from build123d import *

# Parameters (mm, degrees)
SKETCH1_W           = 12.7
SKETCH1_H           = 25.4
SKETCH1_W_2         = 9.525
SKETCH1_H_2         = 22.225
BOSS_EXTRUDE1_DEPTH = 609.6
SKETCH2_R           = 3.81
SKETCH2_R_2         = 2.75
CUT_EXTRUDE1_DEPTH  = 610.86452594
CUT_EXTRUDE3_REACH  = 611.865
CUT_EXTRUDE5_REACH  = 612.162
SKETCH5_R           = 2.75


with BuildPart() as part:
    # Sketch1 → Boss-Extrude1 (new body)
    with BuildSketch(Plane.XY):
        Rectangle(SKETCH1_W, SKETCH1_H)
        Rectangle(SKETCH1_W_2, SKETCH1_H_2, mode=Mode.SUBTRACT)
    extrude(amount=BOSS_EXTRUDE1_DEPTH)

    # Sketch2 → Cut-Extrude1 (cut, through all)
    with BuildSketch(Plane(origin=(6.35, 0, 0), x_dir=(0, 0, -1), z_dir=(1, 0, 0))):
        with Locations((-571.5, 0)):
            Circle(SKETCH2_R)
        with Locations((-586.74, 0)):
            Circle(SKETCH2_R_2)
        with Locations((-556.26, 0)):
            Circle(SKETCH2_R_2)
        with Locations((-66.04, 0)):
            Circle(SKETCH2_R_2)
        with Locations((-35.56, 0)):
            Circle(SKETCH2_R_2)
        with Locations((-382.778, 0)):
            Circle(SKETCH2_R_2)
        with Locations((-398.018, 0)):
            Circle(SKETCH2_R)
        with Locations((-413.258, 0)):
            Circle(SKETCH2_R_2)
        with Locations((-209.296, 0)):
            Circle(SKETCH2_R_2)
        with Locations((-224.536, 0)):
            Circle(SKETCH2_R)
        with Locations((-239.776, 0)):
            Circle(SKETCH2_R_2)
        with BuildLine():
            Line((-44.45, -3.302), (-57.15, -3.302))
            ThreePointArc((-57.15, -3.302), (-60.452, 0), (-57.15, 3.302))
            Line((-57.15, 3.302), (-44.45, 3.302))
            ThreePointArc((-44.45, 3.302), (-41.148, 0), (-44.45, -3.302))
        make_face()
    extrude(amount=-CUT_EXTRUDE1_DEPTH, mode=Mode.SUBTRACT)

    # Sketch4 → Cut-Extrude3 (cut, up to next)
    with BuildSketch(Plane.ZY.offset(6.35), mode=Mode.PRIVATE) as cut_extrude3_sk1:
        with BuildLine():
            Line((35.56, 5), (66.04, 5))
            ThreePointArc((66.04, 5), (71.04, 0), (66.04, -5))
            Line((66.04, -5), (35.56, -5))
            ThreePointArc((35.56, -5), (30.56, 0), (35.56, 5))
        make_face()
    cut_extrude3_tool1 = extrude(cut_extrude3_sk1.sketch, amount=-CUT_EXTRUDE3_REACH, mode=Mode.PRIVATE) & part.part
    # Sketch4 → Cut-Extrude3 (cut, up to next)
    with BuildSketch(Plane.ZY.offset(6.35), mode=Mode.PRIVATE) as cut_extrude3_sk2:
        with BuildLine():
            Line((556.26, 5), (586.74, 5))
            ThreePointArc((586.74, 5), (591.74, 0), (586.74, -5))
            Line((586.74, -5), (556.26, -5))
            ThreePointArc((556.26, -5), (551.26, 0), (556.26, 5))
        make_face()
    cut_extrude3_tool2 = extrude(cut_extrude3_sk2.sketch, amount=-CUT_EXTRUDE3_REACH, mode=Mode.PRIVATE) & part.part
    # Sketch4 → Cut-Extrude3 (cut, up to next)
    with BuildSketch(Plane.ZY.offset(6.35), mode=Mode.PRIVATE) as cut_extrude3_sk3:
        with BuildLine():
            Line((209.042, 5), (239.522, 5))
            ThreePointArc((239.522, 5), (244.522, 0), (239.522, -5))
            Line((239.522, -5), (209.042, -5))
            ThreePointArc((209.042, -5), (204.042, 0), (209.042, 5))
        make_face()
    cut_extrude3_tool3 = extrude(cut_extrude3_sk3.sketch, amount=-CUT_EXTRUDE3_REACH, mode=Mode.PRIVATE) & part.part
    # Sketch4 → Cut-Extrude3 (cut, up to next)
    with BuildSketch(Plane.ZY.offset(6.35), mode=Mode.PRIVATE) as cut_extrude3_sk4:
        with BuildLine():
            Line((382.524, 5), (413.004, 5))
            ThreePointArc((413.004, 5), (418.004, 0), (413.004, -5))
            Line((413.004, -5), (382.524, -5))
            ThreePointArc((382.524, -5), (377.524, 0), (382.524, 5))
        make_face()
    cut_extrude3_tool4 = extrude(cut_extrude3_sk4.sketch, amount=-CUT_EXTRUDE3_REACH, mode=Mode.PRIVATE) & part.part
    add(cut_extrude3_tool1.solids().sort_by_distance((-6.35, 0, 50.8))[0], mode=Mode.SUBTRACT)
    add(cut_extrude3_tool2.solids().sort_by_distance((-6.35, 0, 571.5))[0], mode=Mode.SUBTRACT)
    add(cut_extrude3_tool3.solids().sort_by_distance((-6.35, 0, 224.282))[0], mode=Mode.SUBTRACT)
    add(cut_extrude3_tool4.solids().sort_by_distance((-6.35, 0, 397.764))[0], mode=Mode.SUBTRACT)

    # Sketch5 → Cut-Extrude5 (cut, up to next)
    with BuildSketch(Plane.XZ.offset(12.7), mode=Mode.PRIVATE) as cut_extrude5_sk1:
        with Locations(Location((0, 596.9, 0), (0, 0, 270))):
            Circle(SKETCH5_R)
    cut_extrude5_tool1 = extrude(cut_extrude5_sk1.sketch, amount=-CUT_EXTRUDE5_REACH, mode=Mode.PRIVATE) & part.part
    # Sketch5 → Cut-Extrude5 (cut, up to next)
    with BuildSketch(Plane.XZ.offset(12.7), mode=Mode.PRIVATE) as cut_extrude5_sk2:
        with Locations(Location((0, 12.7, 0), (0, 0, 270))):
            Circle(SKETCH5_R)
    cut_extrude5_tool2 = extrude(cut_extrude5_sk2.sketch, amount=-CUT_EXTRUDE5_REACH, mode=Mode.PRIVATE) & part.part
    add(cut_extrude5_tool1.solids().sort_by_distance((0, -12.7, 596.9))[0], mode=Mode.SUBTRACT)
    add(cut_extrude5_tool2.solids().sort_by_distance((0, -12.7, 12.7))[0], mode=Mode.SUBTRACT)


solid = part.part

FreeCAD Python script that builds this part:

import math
import FreeCAD as App
import Part
import Sketcher
from FreeCAD import Vector
Q = App.Units.Quantity

doc = App.newDocument("Part")
body = doc.addObject("PartDesign::Body", "Body")

sketch1 = body.newObject("Sketcher::SketchObject", "Sketch")
sketch1.AttachmentSupport = (doc.getObject("XY_Plane"), [""])
sketch1.MapMode = "FlatFace"
sketch1.addGeometry([
    Part.LineSegment(Vector(-6, 13, 0), Vector(-6, -13, 0)),
    Part.LineSegment(Vector(-6, -13, 0), Vector(6, -13, 0)),
    Part.LineSegment(Vector(6, -13, 0), Vector(6, 13, 0)),
    Part.LineSegment(Vector(6, 13, 0), Vector(-6, 13, 0)),
    Part.LineSegment(Vector(5, -11, 0), Vector(-5, -11, 0)),
    Part.LineSegment(Vector(-5, -11, 0), Vector(-5, 11, 0)),
    Part.LineSegment(Vector(-5, 11, 0), Vector(5, 11, 0)),
    Part.LineSegment(Vector(5, 11, 0), Vector(5, -11, 0)),
], False)
sketch1.addConstraint([
    Sketcher.Constraint("Coincident", 0, 2, 1, 1),
    Sketcher.Constraint("Coincident", 1, 2, 2, 1),
    Sketcher.Constraint("Coincident", 2, 2, 3, 1),
    Sketcher.Constraint("Coincident", 3, 2, 0, 1),
    Sketcher.Constraint("Coincident", 4, 2, 5, 1),
    Sketcher.Constraint("Coincident", 5, 2, 6, 1),
    Sketcher.Constraint("Coincident", 6, 2, 7, 1),
    Sketcher.Constraint("Coincident", 7, 2, 4, 1),
    Sketcher.Constraint("Vertical", 0),
    Sketcher.Constraint("Horizontal", 1),
    Sketcher.Constraint("Vertical", 2),
    Sketcher.Constraint("Horizontal", 3),
    Sketcher.Constraint("Horizontal", 4),
    Sketcher.Constraint("Vertical", 5),
    Sketcher.Constraint("Horizontal", 6),
    Sketcher.Constraint("Vertical", 7),
    Sketcher.Constraint("Symmetric", 0, 2, 2, 2, -1, 1),
    Sketcher.Constraint("Symmetric", 4, 2, 6, 2, -1, 1),
    Sketcher.Constraint("DistanceY", 0, 2, 0, 1, Q("1 in")),
    Sketcher.Constraint("DistanceX", 1, 1, 1, 2, Q("0.5 in")),
    Sketcher.Constraint("DistanceX", 4, 2, 4, 1, Q("0.375 in")),
    Sketcher.Constraint("DistanceY", 5, 1, 5, 2, Q("0.875 in")),
])
pad1 = body.newObject("PartDesign::Pad", "Pad")
pad1.Profile = sketch1
pad1.Length = Q("24 in")

sketch2 = body.newObject("Sketcher::SketchObject", "Sketch001")
sketch2.AttachmentSupport = (doc.getObject("YZ_Plane"), [""])
sketch2.MapMode = "FlatFace"
sketch2.AttachmentOffset = App.Placement(Vector(0, 0, 0.25 * 25.4), App.Rotation())
sketch2.addGeometry([
    Part.Circle(Vector(0, 571.5, 0), Vector(0, 0, 1), 3.8),
    Part.Circle(Vector(0, 586.7, 0), Vector(0, 0, 1), 2.8),
    Part.Circle(Vector(0, 556.3, 0), Vector(0, 0, 1), 2.8),
    Part.Circle(Vector(0, 66, 0), Vector(0, 0, 1), 2.8),
    Part.Circle(Vector(0, 35.6, 0), Vector(0, 0, 1), 2.8),
    Part.Circle(Vector(0, 382.8, 0), Vector(0, 0, 1), 2.8),
    Part.Circle(Vector(0, 398, 0), Vector(0, 0, 1), 3.8),
    Part.Circle(Vector(0, 413.3, 0), Vector(0, 0, 1), 2.8),
    Part.Circle(Vector(0, 209.3, 0), Vector(0, 0, 1), 2.8),
    Part.Circle(Vector(0, 224.5, 0), Vector(0, 0, 1), 3.8),
    Part.Circle(Vector(0, 239.8, 0), Vector(0, 0, 1), 2.8),
    Part.LineSegment(Vector(-3.3, 57.1, 0), Vector(-3.3, 44.5, 0)),
    Part.ArcOfCircle(Part.Circle(Vector(0, 44.5, 0), Vector(0, 0, 1), 3.3), math.radians(180), math.radians(360)),
    Part.LineSegment(Vector(3.3, 44.5, 0), Vector(3.3, 57.1, 0)),
    Part.ArcOfCircle(Part.Circle(Vector(0, 57.1, 0), Vector(0, 0, 1), 3.3), math.radians(0), math.radians(180)),
], False)
sketch2.addConstraint([
    Sketcher.Constraint("Tangent", 11, 2, 12, 1),
    Sketcher.Constraint("Tangent", 12, 2, 13, 1),
    Sketcher.Constraint("Tangent", 13, 2, 14, 1),
    Sketcher.Constraint("Tangent", 14, 2, 11, 1),
    Sketcher.Constraint("Vertical", 11),
    Sketcher.Constraint("Vertical", 13),
    Sketcher.Constraint("Equal", 1, 2),
    Sketcher.Constraint("Equal", 2, 3),
    Sketcher.Constraint("Equal", 3, 4),
    Sketcher.Constraint("Equal", 4, 5),
    Sketcher.Constraint("Equal", 0, 6),
    Sketcher.Constraint("Equal", 5, 7),
    Sketcher.Constraint("Equal", 7, 8),
    Sketcher.Constraint("Equal", 6, 9),
    Sketcher.Constraint("Equal", 8, 10),
    Sketcher.Constraint("PointOnObject", 0, 3, -2),
    Sketcher.Constraint("PointOnObject", 1, 3, -2),
    Sketcher.Constraint("PointOnObject", 2, 3, -2),
    Sketcher.Constraint("PointOnObject", 3, 3, -2),
    Sketcher.Constraint("PointOnObject", 4, 3, -2),
    Sketcher.Constraint("PointOnObject", 5, 3, -2),
    Sketcher.Constraint("PointOnObject", 6, 3, -2),
    Sketcher.Constraint("PointOnObject", 7, 3, -2),
    Sketcher.Constraint("PointOnObject", 8, 3, -2),
    Sketcher.Constraint("PointOnObject", 9, 3, -2),
    Sketcher.Constraint("PointOnObject", 10, 3, -2),
    Sketcher.Constraint("PointOnObject", 12, 3, -2),
    Sketcher.Constraint("Diameter", 0, Q("0.3 in")),
    Sketcher.Constraint("Radius", 12, Q("0.13 in")),
    Sketcher.Constraint("DistanceY", 11, 2, 11, 1, Q("0.5 in")),
    Sketcher.Constraint("DistanceY", -1, 1, 0, 3, Q("22.5 in")),
    Sketcher.Constraint("DistanceY", -1, 1, 1, 3, Q("23.1 in")),
    Sketcher.Constraint("DistanceY", -1, 1, 2, 3, Q("21.9 in")),
    Sketcher.Constraint("DistanceY", -1, 1, 3, 3, Q("2.6 in")),
    Sketcher.Constraint("DistanceY", -1, 1, 4, 3, Q("1.4 in")),
    Sketcher.Constraint("DistanceY", 5, 3, 6, 3, Q("0.6 in")),
    Sketcher.Constraint("DistanceY", 6, 3, 7, 3, Q("0.6 in")),
    Sketcher.Constraint("DistanceY", 8, 3, 9, 3, Q("0.6 in")),
    Sketcher.Constraint("DistanceY", 9, 3, 10, 3, Q("0.6 in")),
    Sketcher.Constraint("Diameter", 1, Q("5.5 mm")),
    Sketcher.Constraint("DistanceY", -1, 1, 5, 3, Q("15.07 in")),
    Sketcher.Constraint("DistanceY", -1, 1, 8, 3, Q("8.24 in")),
    Sketcher.Constraint("DistanceY", -1, 1, 12, 3, Q("1.75 in")),
])
pocket1 = body.newObject("PartDesign::Pocket", "Pocket")
pocket1.Profile = sketch2
pocket1.Type = "ThroughAll"

sketch3 = body.newObject("Sketcher::SketchObject", "Sketch002")
sketch3.AttachmentSupport = (doc.getObject("YZ_Plane"), [""])
sketch3.MapMode = "FlatFace"
sketch3.AttachmentOffset = App.Placement(Vector(0, 0, -0.25 * 25.4), App.Rotation())
sketch3.addGeometry([
    Part.LineSegment(Vector(5, 66, 0), Vector(5, 36, 0)),
    Part.ArcOfCircle(Part.Circle(Vector(0, 36, 0), Vector(0, 0, 1), 5), math.radians(180), math.radians(360)),
    Part.LineSegment(Vector(-5, 36, 0), Vector(-5, 66, 0)),
    Part.ArcOfCircle(Part.Circle(Vector(0, 66, 0), Vector(0, 0, 1), 5), math.radians(0), math.radians(180)),
], False)
sketch3.addConstraint([
    Sketcher.Constraint("Tangent", 0, 2, 1, 2),
    Sketcher.Constraint("Tangent", 1, 1, 2, 1),
    Sketcher.Constraint("Tangent", 2, 2, 3, 2),
    Sketcher.Constraint("Tangent", 3, 1, 0, 1),
    Sketcher.Constraint("Vertical", 0),
    Sketcher.Constraint("Vertical", 2),
    Sketcher.Constraint("PointOnObject", 1, 3, -2),
    Sketcher.Constraint("DistanceY", 0, 2, 0, 1, Q("1.2 in")),
    Sketcher.Constraint("DistanceY", -1, 1, 1, 3, Q("1.4 in")),
    Sketcher.Constraint("Radius", 1, Q("5 mm")),
])
pocket2 = body.newObject("PartDesign::Pocket", "Pocket001")
pocket2.Profile = sketch3
pocket2.Length = Q("0.0625 in")
pocket2.Reversed = True

sketch4 = body.newObject("Sketcher::SketchObject", "Sketch003")
sketch4.AttachmentSupport = (doc.getObject("YZ_Plane"), [""])
sketch4.MapMode = "FlatFace"
sketch4.AttachmentOffset = App.Placement(Vector(0, 0, -0.25 * 25.4), App.Rotation())
sketch4.addGeometry([
    Part.LineSegment(Vector(5, 587, 0), Vector(5, 556, 0)),
    Part.ArcOfCircle(Part.Circle(Vector(0, 556, 0), Vector(0, 0, 1), 5), math.radians(180), math.radians(360)),
    Part.LineSegment(Vector(-5, 556, 0), Vector(-5, 587, 0)),
    Part.ArcOfCircle(Part.Circle(Vector(0, 587, 0), Vector(0, 0, 1), 5), math.radians(0), math.radians(180)),
], False)
sketch4.addConstraint([
    Sketcher.Constraint("Tangent", 0, 2, 1, 2),
    Sketcher.Constraint("Tangent", 1, 1, 2, 1),
    Sketcher.Constraint("Tangent", 2, 2, 3, 2),
    Sketcher.Constraint("Tangent", 3, 1, 0, 1),
    Sketcher.Constraint("Vertical", 0),
    Sketcher.Constraint("Vertical", 2),
    Sketcher.Constraint("PointOnObject", 1, 3, -2),
    Sketcher.Constraint("DistanceY", 0, 2, 0, 1, Q("1.2 in")),
    Sketcher.Constraint("DistanceY", -1, 1, 1, 3, Q("21.9 in")),
    Sketcher.Constraint("Radius", 1, Q("5 mm")),
])
pocket3 = body.newObject("PartDesign::Pocket", "Pocket002")
pocket3.Profile = sketch4
pocket3.Length = Q("0.0625 in")
pocket3.Reversed = True

sketch5 = body.newObject("Sketcher::SketchObject", "Sketch004")
sketch5.AttachmentSupport = (doc.getObject("YZ_Plane"), [""])
sketch5.MapMode = "FlatFace"
sketch5.AttachmentOffset = App.Placement(Vector(0, 0, -0.25 * 25.4), App.Rotation())
sketch5.addGeometry([
    Part.LineSegment(Vector(5, 240, 0), Vector(5, 209, 0)),
    Part.ArcOfCircle(Part.Circle(Vector(0, 209, 0), Vector(0, 0, 1), 5), math.radians(180), math.radians(360)),
    Part.LineSegment(Vector(-5, 209, 0), Vector(-5, 240, 0)),
    Part.ArcOfCircle(Part.Circle(Vector(0, 240, 0), Vector(0, 0, 1), 5), math.radians(0), math.radians(180)),
], False)
sketch5.addConstraint([
    Sketcher.Constraint("Tangent", 0, 2, 1, 2),
    Sketcher.Constraint("Tangent", 1, 1, 2, 1),
    Sketcher.Constraint("Tangent", 2, 2, 3, 2),
    Sketcher.Constraint("Tangent", 3, 1, 0, 1),
    Sketcher.Constraint("Vertical", 0),
    Sketcher.Constraint("Vertical", 2),
    Sketcher.Constraint("PointOnObject", 1, 3, -2),
    Sketcher.Constraint("DistanceY", 0, 2, 0, 1, Q("1.2 in")),
    Sketcher.Constraint("DistanceY", -1, 1, 1, 3, Q("8.23 in")),
    Sketcher.Constraint("Radius", 1, Q("5 mm")),
])
pocket4 = body.newObject("PartDesign::Pocket", "Pocket003")
pocket4.Profile = sketch5
pocket4.Length = Q("0.0625 in")
pocket4.Reversed = True

sketch6 = body.newObject("Sketcher::SketchObject", "Sketch005")
sketch6.AttachmentSupport = (doc.getObject("YZ_Plane"), [""])
sketch6.MapMode = "FlatFace"
sketch6.AttachmentOffset = App.Placement(Vector(0, 0, -0.25 * 25.4), App.Rotation())
sketch6.addGeometry([
    Part.LineSegment(Vector(5, 413, 0), Vector(5, 383, 0)),
    Part.ArcOfCircle(Part.Circle(Vector(0, 383, 0), Vector(0, 0, 1), 5), math.radians(180), math.radians(360)),
    Part.LineSegment(Vector(-5, 383, 0), Vector(-5, 413, 0)),
    Part.ArcOfCircle(Part.Circle(Vector(0, 413, 0), Vector(0, 0, 1), 5), math.radians(0), math.radians(180)),
], False)
sketch6.addConstraint([
    Sketcher.Constraint("Tangent", 0, 2, 1, 2),
    Sketcher.Constraint("Tangent", 1, 1, 2, 1),
    Sketcher.Constraint("Tangent", 2, 2, 3, 2),
    Sketcher.Constraint("Tangent", 3, 1, 0, 1),
    Sketcher.Constraint("Vertical", 0),
    Sketcher.Constraint("Vertical", 2),
    Sketcher.Constraint("PointOnObject", 1, 3, -2),
    Sketcher.Constraint("DistanceY", 0, 2, 0, 1, Q("1.2 in")),
    Sketcher.Constraint("DistanceY", -1, 1, 1, 3, Q("15.06 in")),
    Sketcher.Constraint("Radius", 1, Q("5 mm")),
])
pocket5 = body.newObject("PartDesign::Pocket", "Pocket004")
pocket5.Profile = sketch6
pocket5.Length = Q("0.0625 in")
pocket5.Reversed = True

sketch7 = body.newObject("Sketcher::SketchObject", "Sketch006")
sketch7.AttachmentSupport = (doc.getObject("XZ_Plane"), [""])
sketch7.MapMode = "FlatFace"
sketch7.AttachmentOffset = App.Placement(Vector(0, 0, 0.5 * 25.4), App.Rotation())
sketch7.addGeometry(Part.Circle(Vector(0, 596.9, 0), Vector(0, 0, 1), 2.8), False)
sketch7.addConstraint([
    Sketcher.Constraint("PointOnObject", 0, 3, -2),
    Sketcher.Constraint("DistanceY", -1, 1, 0, 3, Q("23.5 in")),
    Sketcher.Constraint("Diameter", 0, Q("5.5 mm")),
])
pocket6 = body.newObject("PartDesign::Pocket", "Pocket005")
pocket6.Profile = sketch7
pocket6.Type = "UpToFirst"

sketch8 = body.newObject("Sketcher::SketchObject", "Sketch007")
sketch8.AttachmentSupport = (doc.getObject("XZ_Plane"), [""])
sketch8.MapMode = "FlatFace"
sketch8.AttachmentOffset = App.Placement(Vector(0, 0, 0.5 * 25.4), App.Rotation())
sketch8.addGeometry(Part.Circle(Vector(0, 12.7, 0), Vector(0, 0, 1), 2.8), False)
sketch8.addConstraint([
    Sketcher.Constraint("PointOnObject", 0, 3, -2),
    Sketcher.Constraint("DistanceY", -1, 1, 0, 3, Q("0.5 in")),
    Sketcher.Constraint("Diameter", 0, Q("5.5 mm")),
])
pocket7 = body.newObject("PartDesign::Pocket", "Pocket006")
pocket7.Profile = sketch8
pocket7.Type = "UpToFirst"

doc.recompute()
